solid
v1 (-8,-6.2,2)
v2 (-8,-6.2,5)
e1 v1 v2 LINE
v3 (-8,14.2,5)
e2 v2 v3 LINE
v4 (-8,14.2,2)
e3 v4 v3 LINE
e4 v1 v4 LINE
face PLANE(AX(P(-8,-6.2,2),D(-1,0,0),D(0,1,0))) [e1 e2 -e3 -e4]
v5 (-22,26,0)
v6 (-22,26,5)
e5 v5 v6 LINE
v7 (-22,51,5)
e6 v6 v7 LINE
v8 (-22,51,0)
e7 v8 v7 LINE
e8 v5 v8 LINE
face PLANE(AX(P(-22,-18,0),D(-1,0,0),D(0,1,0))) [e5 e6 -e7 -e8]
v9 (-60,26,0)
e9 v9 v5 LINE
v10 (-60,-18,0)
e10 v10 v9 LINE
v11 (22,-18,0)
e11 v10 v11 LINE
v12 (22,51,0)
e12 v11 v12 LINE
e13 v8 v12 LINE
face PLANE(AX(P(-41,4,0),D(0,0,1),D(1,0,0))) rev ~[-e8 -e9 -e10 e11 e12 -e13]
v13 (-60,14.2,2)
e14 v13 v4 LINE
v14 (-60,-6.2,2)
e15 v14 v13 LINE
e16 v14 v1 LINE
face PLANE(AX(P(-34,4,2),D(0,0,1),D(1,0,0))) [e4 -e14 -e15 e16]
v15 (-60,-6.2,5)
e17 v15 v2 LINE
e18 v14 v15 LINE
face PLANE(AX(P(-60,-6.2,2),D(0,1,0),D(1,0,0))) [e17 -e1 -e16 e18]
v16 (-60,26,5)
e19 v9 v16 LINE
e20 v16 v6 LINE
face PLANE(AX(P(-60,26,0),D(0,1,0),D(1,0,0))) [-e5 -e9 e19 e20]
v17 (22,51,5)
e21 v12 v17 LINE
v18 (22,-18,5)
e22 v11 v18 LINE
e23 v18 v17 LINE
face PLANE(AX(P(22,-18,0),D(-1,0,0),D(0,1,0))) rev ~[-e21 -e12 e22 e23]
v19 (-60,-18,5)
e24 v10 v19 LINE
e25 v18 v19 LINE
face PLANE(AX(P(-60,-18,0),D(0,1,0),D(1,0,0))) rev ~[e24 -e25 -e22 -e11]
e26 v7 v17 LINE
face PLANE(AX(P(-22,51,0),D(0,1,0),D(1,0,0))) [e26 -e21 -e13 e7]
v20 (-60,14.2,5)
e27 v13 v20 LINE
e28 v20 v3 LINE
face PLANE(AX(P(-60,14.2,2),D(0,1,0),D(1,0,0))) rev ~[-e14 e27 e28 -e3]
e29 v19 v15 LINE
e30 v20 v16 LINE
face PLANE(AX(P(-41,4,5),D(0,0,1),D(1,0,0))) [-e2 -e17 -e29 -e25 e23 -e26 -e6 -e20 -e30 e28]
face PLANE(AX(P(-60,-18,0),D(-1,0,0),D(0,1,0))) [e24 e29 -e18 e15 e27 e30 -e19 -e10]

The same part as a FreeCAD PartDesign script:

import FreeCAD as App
import Part
import Sketcher

V = App.Vector
Q = App.Units.Quantity

doc = App.newDocument("Part")
params = doc.addObject("Spreadsheet::Sheet", "Params")
for row, (alias, value) in enumerate([
    ("sketch1_width", "52 mm"),
    ("sketch1_height", "20.4 mm"),
    ("pad1_length", "3 mm"),
    ("sketch2_width", "38 mm"),
    ("sketch2_height", "44 mm"),
    ("pad2_length", "5 mm"),
    ("sketch3_width", "44 mm"),
    ("sketch3_height", "69 mm"),
    ("pad3_length", "5 mm"),
], start=1):
    params.set(f"A{row}", alias)
    params.set(f"B{row}", "=" + value)
    params.setAlias(f"B{row}", alias)

body = doc.addObject("PartDesign::Body", "Body")

sketch1 = body.newObject("Sketcher::SketchObject", "Sketch")
sketch1.AttachmentSupport = (doc.getObject("XY_Plane"), [""])
sketch1.MapMode = "FlatFace"
sketch1.AttachmentOffset = App.Placement(V(0, 0, 2), App.Rotation())
sketch1.addGeometry([
    Part.LineSegment(V(-60, 14, 0), V(-60, -6, 0)),
    Part.LineSegment(V(-60, -6, 0), V(-8, -6, 0)),
    Part.LineSegment(V(-8, -6, 0), V(-8, 14, 0)),
    Part.LineSegment(V(-8, 14, 0), V(-60, 14, 0)),
], False)
sketch1.addConstraint([
    Sketcher.Constraint("Coincident", 0, 2, 1, 1),
    Sketcher.Constraint("Coincident", 1, 2, 2, 1),
    Sketcher.Constraint("Coincident", 2, 2, 3, 1),
    Sketcher.Constraint("Coincident", 3, 2, 0, 1),
    Sketcher.Constraint("Vertical", 0),
    Sketcher.Constraint("Horizontal", 1),
    Sketcher.Constraint("Vertical", 2),
    Sketcher.Constraint("Horizontal", 3),
    Sketcher.Constraint("DistanceX", 1, 1, 1, 2, Q("52 mm")),
    Sketcher.Constraint("DistanceY", 0, 2, 0, 1, Q("20.4 mm")),
    Sketcher.Constraint("DistanceX", 0, 2, -1, 1, Q("60 mm")),
    Sketcher.Constraint("DistanceY", 0, 2, -1, 1, Q("6.2 mm")),
])
sketch1.setExpression("Constraints[8]", "Params.sketch1_width")
sketch1.setExpression("Constraints[9]", "Params.sketch1_height")
pad1 = body.newObject("PartDesign::Pad", "Pad")
pad1.Profile = sketch1
pad1.setExpression("Length", "Params.pad1_length")
body2 = doc.addObject("PartDesign::Body", "Body001")

sketch2 = body2.newObject("Sketcher::SketchObject", "Sketch001")
sketch2.AttachmentSupport = (doc.getObject("XY_Plane001"), [""])
sketch2.MapMode = "FlatFace"
sketch2.addGeometry([
    Part.LineSegment(V(-60, 26, 0), V(-60, -18, 0)),
    Part.LineSegment(V(-60, -18, 0), V(-22, -18, 0)),
    Part.LineSegment(V(-22, -18, 0), V(-22, 26, 0)),
    Part.LineSegment(V(-22, 26, 0), V(-60, 26, 0)),
], False)
sketch2.addConstraint([
    Sketcher.Constraint("Coincident", 0, 2, 1, 1),
    Sketcher.Constraint("Coincident", 1, 2, 2, 1),
    Sketcher.Constraint("Coincident", 2, 2, 3, 1),
    Sketcher.Constraint("Coincident", 3, 2, 0, 1),
    Sketcher.Constraint("Vertical", 0),
    Sketcher.Constraint("Horizontal", 1),
    Sketcher.Constraint("Vertical", 2),
    Sketcher.Constraint("Horizontal", 3),
    Sketcher.Constraint("DistanceX", 1, 1, 1, 2, Q("38 mm")),
    Sketcher.Constraint("DistanceY", 0, 2, 0, 1, Q("44 mm")),
    Sketcher.Constraint("DistanceX", 0, 2, -1, 1, Q("60 mm")),
    Sketcher.Constraint("DistanceY", 0, 2, -1, 1, Q("18 mm")),
])
sketch2.setExpression("Constraints[8]", "Params.sketch2_width")
sketch2.setExpression("Constraints[9]", "Params.sketch2_height")
pad2 = body2.newObject("PartDesign::Pad", "Pad001")
pad2.Profile = sketch2
pad2.setExpression("Length", "Params.pad2_length")
body3 = doc.addObject("PartDesign::Body", "Body002")

sketch3 = body3.newObject("Sketcher::SketchObject", "Sketch002")
sketch3.AttachmentSupport = (doc.getObject("XY_Plane002"), [""])
sketch3.MapMode = "FlatFace"
sketch3.addGeometry([
    Part.LineSegment(V(-22, 51, 0), V(-22, -18, 0)),
    Part.LineSegment(V(-22, -18, 0), V(22, -18, 0)),
    Part.LineSegment(V(22, -18, 0), V(22, 51, 0)),
    Part.LineSegment(V(22, 51, 0), V(-22, 51, 0)),
], False)
sketch3.addConstraint([
    Sketcher.Constraint("Coincident", 0, 2, 1, 1),
    Sketcher.Constraint("Coincident", 1, 2, 2, 1),
    Sketcher.Constraint("Coincident", 2, 2, 3, 1),
    Sketcher.Constraint("Coincident", 3, 2, 0, 1),
    Sketcher.Constraint("Vertical", 0),
    Sketcher.Constraint("Horizontal", 1),
    Sketcher.Constraint("Vertical", 2),
    Sketcher.Constraint("Horizontal", 3),
    Sketcher.Constraint("DistanceX", 1, 1, 1, 2, Q("44 mm")),
    Sketcher.Constraint("DistanceY", 0, 2, 0, 1, Q("69 mm")),
    Sketcher.Constraint("DistanceX", 0, 2, -1, 1, Q("22 mm")),
    Sketcher.Constraint("DistanceY", 0, 2, -1, 1, Q("18 mm")),
])
sketch3.setExpression("Constraints[8]", "Params.sketch3_width")
sketch3.setExpression("Constraints[9]", "Params.sketch3_height")
pad3 = body3.newObject("PartDesign::Pad", "Pad002")
pad3.Profile = sketch3
pad3.setExpression("Length", "Params.pad3_length")
doc.recompute()

boolean = body3.newObject("PartDesign::Boolean", "Boolean")
boolean.Type = "Fuse"
boolean.addObjects([body2])
doc.recompute()

boolean2 = body3.newObject("PartDesign::Boolean", "Boolean001")
boolean2.Type = "Cut"
boolean2.addObjects([body])

doc.recompute()
